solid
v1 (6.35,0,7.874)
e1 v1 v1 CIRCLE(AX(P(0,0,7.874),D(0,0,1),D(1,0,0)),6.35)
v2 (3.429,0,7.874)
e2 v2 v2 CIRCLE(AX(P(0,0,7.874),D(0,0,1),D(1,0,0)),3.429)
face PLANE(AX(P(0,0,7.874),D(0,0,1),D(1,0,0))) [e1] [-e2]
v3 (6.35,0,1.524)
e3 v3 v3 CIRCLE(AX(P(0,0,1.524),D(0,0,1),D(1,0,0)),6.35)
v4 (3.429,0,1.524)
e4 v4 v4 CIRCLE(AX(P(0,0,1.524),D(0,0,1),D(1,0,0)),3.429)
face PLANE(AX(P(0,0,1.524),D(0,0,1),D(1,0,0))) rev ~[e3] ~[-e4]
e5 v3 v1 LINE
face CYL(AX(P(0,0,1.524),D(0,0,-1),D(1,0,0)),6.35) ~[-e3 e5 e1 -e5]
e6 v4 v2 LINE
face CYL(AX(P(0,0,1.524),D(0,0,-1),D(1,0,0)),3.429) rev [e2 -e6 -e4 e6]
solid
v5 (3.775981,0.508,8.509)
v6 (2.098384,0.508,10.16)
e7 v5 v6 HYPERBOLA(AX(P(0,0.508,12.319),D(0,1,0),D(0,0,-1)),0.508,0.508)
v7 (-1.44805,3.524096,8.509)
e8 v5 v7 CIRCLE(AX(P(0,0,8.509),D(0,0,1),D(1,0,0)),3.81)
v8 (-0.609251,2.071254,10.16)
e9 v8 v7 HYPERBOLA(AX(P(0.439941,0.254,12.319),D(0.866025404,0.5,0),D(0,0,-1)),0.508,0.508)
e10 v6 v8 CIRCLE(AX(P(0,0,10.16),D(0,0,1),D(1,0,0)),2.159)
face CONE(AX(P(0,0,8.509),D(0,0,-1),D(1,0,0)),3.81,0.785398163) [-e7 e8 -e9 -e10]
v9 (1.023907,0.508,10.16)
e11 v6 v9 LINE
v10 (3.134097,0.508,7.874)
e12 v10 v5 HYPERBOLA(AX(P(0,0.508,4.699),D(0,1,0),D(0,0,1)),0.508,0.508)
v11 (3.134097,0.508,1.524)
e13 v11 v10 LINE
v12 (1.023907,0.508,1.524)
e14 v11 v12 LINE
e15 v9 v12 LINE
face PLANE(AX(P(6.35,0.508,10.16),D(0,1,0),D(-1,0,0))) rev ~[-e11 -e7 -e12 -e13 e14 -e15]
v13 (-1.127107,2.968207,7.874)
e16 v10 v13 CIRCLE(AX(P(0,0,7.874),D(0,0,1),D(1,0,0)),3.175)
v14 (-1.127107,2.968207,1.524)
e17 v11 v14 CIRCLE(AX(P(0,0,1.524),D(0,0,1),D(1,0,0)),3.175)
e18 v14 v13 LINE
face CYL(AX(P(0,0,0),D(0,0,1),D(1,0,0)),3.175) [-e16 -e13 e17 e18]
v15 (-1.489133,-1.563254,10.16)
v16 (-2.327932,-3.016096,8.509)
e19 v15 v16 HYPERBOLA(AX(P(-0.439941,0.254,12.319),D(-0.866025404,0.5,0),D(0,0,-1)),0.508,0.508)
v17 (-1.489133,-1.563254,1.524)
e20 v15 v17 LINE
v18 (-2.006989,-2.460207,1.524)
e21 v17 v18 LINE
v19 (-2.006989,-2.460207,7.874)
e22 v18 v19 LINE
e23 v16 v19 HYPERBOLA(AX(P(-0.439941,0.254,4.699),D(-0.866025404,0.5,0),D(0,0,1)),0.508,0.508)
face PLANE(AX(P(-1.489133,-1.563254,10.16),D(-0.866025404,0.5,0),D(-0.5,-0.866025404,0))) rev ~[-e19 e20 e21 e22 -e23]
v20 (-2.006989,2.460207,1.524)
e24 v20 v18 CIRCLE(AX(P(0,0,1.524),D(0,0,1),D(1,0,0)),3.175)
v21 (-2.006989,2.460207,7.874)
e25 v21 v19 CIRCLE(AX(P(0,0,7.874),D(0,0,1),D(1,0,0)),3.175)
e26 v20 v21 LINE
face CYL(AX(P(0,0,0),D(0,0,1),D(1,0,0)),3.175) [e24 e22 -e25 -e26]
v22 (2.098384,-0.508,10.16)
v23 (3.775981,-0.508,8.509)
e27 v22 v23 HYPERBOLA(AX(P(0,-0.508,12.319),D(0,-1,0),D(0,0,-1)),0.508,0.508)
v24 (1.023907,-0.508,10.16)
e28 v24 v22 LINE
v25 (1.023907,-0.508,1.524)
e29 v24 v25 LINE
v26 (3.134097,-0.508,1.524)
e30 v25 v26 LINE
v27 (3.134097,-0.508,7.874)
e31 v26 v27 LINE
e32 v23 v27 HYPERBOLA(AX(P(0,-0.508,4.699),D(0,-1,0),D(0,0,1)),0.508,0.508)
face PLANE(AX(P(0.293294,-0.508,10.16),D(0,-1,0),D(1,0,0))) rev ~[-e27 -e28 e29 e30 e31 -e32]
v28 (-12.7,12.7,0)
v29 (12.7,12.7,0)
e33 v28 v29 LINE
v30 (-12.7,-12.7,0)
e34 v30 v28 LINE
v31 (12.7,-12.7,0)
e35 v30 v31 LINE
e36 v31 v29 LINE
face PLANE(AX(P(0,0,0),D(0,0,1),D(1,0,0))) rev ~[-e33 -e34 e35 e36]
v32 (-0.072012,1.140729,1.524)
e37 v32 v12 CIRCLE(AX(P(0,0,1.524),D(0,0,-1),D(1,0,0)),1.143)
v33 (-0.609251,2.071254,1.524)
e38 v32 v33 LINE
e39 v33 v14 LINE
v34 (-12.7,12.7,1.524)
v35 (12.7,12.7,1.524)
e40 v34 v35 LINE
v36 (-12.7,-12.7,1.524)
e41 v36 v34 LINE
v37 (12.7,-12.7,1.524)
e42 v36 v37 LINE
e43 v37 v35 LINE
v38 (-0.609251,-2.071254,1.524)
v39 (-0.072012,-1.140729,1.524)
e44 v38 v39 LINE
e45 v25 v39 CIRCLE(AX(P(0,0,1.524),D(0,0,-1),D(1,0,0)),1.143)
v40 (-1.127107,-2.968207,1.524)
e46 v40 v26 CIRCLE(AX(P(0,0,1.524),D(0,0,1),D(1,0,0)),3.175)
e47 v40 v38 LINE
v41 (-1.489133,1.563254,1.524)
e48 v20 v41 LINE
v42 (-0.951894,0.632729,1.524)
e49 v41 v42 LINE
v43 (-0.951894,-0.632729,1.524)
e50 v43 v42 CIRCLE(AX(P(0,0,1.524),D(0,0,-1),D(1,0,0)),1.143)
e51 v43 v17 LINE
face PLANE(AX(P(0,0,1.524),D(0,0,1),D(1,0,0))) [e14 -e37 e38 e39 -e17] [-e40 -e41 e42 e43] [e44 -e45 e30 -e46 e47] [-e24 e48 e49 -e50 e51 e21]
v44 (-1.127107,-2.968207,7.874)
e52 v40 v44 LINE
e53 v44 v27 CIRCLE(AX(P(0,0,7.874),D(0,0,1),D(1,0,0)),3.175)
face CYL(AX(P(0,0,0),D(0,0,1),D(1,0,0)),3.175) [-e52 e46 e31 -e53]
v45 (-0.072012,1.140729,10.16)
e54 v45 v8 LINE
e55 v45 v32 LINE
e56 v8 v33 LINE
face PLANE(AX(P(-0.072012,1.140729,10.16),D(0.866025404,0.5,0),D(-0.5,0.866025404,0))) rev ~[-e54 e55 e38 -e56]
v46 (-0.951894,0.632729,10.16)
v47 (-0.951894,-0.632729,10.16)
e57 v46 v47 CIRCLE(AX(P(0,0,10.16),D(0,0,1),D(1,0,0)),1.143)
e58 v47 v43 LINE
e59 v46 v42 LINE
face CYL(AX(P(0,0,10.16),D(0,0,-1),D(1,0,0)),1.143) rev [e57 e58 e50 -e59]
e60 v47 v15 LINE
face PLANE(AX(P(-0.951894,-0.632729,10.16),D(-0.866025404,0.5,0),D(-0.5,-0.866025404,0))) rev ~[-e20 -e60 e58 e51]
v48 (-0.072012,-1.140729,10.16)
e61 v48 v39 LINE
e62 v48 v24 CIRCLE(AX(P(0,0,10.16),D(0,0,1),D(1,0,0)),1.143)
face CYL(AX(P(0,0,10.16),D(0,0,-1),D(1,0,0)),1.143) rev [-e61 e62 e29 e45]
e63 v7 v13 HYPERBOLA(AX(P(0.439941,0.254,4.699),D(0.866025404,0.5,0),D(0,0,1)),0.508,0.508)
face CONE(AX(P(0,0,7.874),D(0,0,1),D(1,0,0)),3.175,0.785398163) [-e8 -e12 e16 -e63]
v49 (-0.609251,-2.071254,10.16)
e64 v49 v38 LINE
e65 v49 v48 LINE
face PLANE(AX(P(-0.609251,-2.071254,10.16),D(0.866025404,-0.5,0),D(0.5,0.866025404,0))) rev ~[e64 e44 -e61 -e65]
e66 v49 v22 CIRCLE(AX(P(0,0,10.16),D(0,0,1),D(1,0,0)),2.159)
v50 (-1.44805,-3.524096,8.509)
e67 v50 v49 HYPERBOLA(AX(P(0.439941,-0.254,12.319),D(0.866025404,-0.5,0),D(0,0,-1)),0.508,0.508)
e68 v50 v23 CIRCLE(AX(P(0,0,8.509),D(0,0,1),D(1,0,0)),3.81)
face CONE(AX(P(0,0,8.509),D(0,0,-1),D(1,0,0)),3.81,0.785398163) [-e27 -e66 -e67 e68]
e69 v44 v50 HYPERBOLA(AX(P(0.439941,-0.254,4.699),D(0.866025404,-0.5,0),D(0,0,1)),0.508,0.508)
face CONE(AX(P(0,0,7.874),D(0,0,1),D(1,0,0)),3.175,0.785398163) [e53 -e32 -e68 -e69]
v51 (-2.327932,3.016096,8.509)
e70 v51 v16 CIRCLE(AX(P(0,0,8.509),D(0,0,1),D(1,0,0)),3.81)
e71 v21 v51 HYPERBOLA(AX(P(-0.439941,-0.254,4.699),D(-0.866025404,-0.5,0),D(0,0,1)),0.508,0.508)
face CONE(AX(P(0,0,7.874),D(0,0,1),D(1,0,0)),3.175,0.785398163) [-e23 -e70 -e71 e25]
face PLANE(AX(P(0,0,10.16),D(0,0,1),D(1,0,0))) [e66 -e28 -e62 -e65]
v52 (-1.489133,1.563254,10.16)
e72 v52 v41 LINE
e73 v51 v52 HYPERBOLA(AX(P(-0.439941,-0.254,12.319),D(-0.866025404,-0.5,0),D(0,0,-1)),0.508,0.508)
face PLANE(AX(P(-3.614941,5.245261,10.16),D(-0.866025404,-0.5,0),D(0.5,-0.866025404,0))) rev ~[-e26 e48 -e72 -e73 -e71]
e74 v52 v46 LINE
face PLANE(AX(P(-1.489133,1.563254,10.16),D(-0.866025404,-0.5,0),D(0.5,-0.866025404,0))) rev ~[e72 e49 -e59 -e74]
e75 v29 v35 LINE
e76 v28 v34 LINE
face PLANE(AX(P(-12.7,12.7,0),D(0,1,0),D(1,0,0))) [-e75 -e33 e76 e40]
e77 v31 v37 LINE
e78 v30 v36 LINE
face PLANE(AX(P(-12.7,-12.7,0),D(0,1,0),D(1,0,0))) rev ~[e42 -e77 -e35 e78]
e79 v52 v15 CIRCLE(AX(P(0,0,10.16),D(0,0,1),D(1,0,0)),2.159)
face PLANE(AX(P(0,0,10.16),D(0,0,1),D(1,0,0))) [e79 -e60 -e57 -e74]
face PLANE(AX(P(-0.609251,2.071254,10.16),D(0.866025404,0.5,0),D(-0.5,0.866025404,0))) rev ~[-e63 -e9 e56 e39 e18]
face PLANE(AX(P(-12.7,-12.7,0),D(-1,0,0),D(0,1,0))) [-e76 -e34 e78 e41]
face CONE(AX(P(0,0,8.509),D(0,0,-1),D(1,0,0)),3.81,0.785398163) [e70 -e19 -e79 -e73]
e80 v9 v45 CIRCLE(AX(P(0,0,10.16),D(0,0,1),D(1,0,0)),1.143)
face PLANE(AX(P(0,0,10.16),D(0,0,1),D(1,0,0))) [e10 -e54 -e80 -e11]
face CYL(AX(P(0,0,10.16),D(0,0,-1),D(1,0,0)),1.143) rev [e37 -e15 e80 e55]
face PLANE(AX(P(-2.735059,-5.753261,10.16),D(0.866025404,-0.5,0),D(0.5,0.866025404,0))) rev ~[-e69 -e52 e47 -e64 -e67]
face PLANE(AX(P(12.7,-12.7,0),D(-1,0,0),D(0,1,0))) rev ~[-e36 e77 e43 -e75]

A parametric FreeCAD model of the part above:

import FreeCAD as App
import Part
import Sketcher
Q = App.Units.Quantity


def add_polygon(sketch, points):
    """Adds a closed chain of lines whose ends are joined by coincident constraints."""
    first, n = sketch.GeometryCount, len(points)
    for a, b in zip(points, points[1:] + points[:1]):
        sketch.addGeometry(Part.LineSegment(App.Vector(*a, 0), App.Vector(*b, 0)), False)
    for i in range(n):
        sketch.addConstraint(Sketcher.Constraint("Coincident", first + i, 2, first + (i + 1) % n, 1))

doc = App.newDocument("Part")
body = doc.addObject("PartDesign::Body", "Body")

# Sketch on XY plane
sketch1 = body.newObject("Sketcher::SketchObject", "Sketch")
sketch1.AttachmentSupport = (doc.getObject("XY_Plane"), [""])
sketch1.MapMode = "FlatFace"
add_polygon(sketch1, [(-13, 13), (-13, -13), (13, -13), (13, 13)])  # lines 0-3
sketch1.addConstraint([
    Sketcher.Constraint("Vertical", 0),
    Sketcher.Constraint("Horizontal", 1),
    Sketcher.Constraint("Vertical", 2),
    Sketcher.Constraint("Horizontal", 3),
    Sketcher.Constraint("Symmetric", 0, 2, 2, 2, -1, 1),
    Sketcher.Constraint("Equal", 3, 0),
    Sketcher.Constraint("DistanceX", 1, 1, 1, 2, Q("1 in")),
])
pad1 = body.newObject("PartDesign::Pad", "Pad")
pad1.Profile = sketch1
pad1.Length = Q("0.06 in")

# Sketch on XZ plane
sketch2 = body.newObject("Sketcher::SketchObject", "Sketch001")
sketch2.AttachmentSupport = (doc.getObject("XZ_Plane"), [""])
sketch2.MapMode = "FlatFace"
add_polygon(sketch2, [(1.1, 10.2), (1.1, 0), (3.2, 0), (3.2, 7.9), (3.8, 8.5), (2.2, 10.2)])  # lines 0-5
sketch2.addConstraint([
    Sketcher.Constraint("Vertical", 0),
    Sketcher.Constraint("Horizontal", 1),
    Sketcher.Constraint("Vertical", 2),
    Sketcher.Constraint("Horizontal", 5),
    Sketcher.Constraint("PointOnObject", 0, 2, -1),
    Sketcher.Constraint("Perpendicular", 3, 4),
    Sketcher.Constraint("DistanceY", 0, 2, 0, 1, Q("0.4 in")),
    Sketcher.Constraint("Angle", 3, Q("45 deg")),
    Sketcher.Constraint("DistanceX", 1, 1, 1, 2, Q("0.08 in")),
    Sketcher.Constraint("DistanceX", 5, 2, 5, 1, Q("0.04 in")),
    Sketcher.Constraint("DistanceY", 2, 1, 2, 2, Q("0.31 in")),
    Sketcher.Constraint("DistanceX", -1, 1, 3, 2, Q("0.15 in")),
])
revolution = body.newObject("PartDesign::Revolution", "Revolution")
revolution.Profile = sketch2
revolution.ReferenceAxis = (sketch2, ["V_Axis"])
revolution.Angle = 360

# Sketch on XY plane
sketch3 = body.newObject("Sketcher::SketchObject", "Sketch002")
sketch3.AttachmentSupport = (doc.getObject("XY_Plane"), [""])
sketch3.MapMode = "FlatFace"
sketch3.AttachmentOffset = App.Placement(App.Vector(0, 0, 0.4 * 25.4), App.Rotation())
add_polygon(sketch3, [(6.3, -0.5), (6.3, 0.5), (0.3, 0.5), (-0.1, 1.1), (-0.6, 2.1), (-2.7, 5.8), (-3.6, 5.2), (-1.5, 1.6), (-1, 0.6), (-0.6, 0), (-1, -0.6), (-1.5, -1.6), (-3.6, -5.2), (-2.7, -5.8), (-0.6, -2.1), (-0.1, -1.1), (0.3, -0.5)])  # lines 0-16
sketch3.addConstraint([
    Sketcher.Constraint("Vertical", 0),
    Sketcher.Constraint("Horizontal", 1),
    Sketcher.Constraint("Horizontal", 16),
    Sketcher.Constraint("Symmetric", 7, 2, 9, 2, -1),
    Sketcher.Constraint("Symmetric", 6, 2, 10, 2, -1),
    Sketcher.Constraint("Symmetric", 5, 2, 11, 2, -1),
    Sketcher.Constraint("Symmetric", 4, 2, 12, 2, -1),
    Sketcher.Constraint("Symmetric", 3, 2, 13, 2, -1),
    Sketcher.Constraint("Symmetric", 2, 2, 14, 2, -1),
    Sketcher.Constraint("Symmetric", 1, 2, 15, 2, -1),
    Sketcher.Constraint("PointOnObject", 8, 2, -1),
    Sketcher.Constraint("Parallel", 2, 3),
    Sketcher.Constraint("Parallel", 3, 4),
    Sketcher.Constraint("Perpendicular", 4, 5),
    Sketcher.Constraint("Perpendicular", 5, 6),
    Sketcher.Constraint("Parallel", 6, 7),
    Sketcher.Constraint("Parallel", 7, 8),
    Sketcher.Constraint("Equal", 4, 6),
    Sketcher.Constraint("Equal", 3, 7),
    Sketcher.Constraint("Equal", 2, 8),
    Sketcher.Constraint("Angle", 2, Q("120 deg")),
    Sketcher.Constraint("DistanceY", 0, 1, 0, 2, Q("0.04 in")),
    Sketcher.Constraint("DistanceX", -1, 1, 0, 2, Q("0.25 in")),
    Sketcher.Constraint("DistanceX", 1, 2, 1, 1, 6.056706),
    Sketcher.Constraint("DistanceY", -1, 1, 2, 2, 1.140729),
    Sketcher.Constraint("DistanceX", 3, 2, -1, 1, 0.609251),
    Sketcher.Constraint("DistanceX", 4, 2, -1, 1, 2.735059),
])
pocket1 = body.newObject("PartDesign::Pocket", "Pocket")
pocket1.Profile = sketch3
pocket1.Length = Q("0.34 in")
body2 = doc.addObject("PartDesign::Body", "Body001")

# Sketch on XY plane
sketch4 = body2.newObject("Sketcher::SketchObject", "Sketch003")
sketch4.AttachmentSupport = (doc.getObject("XY_Plane001"), [""])
sketch4.MapMode = "FlatFace"
sketch4.AttachmentOffset = App.Placement(App.Vector(0, 0, 0.06 * 25.4), App.Rotation())
sketch4.addGeometry([
    Part.Circle(App.Vector(0, 0, 0), App.Vector(0, 0, 1), 6.3),
    Part.Circle(App.Vector(0, 0, 0), App.Vector(0, 0, 1), 3.4),
], False)
sketch4.addConstraint([
    Sketcher.Constraint("Coincident", 0, 3, -1, 1),
    Sketcher.Constraint("Coincident", 1, 3, -1, 1),
    Sketcher.Constraint("Diameter", 0, Q("0.5 in")),
    Sketcher.Constraint("Diameter", 1, Q("0.27 in")),
])
pad2 = body2.newObject("PartDesign::Pad", "Pad001")
pad2.Profile = sketch4
pad2.Length = Q("0.25 in")

doc.recompute()
